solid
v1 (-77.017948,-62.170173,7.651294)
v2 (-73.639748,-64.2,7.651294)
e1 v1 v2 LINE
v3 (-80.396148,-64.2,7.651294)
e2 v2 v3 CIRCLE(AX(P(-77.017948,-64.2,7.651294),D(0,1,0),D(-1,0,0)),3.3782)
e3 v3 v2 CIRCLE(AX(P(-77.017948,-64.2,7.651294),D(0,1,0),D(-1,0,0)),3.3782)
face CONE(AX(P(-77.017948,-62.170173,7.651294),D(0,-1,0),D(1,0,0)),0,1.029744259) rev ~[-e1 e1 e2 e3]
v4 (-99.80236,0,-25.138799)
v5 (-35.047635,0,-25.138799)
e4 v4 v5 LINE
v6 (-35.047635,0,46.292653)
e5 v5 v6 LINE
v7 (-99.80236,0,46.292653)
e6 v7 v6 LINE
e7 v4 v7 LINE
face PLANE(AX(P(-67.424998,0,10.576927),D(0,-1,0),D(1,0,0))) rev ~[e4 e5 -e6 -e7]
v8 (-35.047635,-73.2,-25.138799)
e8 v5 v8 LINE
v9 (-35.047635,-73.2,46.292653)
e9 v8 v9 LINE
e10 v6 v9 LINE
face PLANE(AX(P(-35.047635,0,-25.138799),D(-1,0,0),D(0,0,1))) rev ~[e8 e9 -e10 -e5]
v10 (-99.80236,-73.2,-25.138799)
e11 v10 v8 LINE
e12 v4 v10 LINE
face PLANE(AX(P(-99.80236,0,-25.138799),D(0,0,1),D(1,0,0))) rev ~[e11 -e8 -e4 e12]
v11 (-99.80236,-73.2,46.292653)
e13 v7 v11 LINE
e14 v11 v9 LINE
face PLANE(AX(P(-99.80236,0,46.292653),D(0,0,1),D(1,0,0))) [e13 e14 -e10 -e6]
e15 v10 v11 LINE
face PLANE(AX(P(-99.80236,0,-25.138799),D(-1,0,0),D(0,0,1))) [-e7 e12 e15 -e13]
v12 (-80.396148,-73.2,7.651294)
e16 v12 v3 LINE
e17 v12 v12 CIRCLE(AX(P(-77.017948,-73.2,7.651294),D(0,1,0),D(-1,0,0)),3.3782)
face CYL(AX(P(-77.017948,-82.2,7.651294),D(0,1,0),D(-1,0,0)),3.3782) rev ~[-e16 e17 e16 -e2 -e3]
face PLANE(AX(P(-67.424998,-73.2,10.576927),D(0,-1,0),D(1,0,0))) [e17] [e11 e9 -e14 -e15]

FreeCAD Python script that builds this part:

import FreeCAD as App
import Part
import Sketcher

doc = App.newDocument("Part")
body = doc.addObject("PartDesign::Body", "Body")

sketch1 = doc.addObject("Sketcher::SketchObject", "Sketch")
body.addObject(sketch1)
sketch1.AttachmentSupport = (doc.XZ_Plane, [""])
sketch1.MapMode = "FlatFace"
sketch1.addGeometry(Part.LineSegment(App.Vector(-99.80236, 46.292653, 0), App.Vector(-99.80236, -25.138799, 0)), False)
sketch1.addGeometry(Part.LineSegment(App.Vector(-99.80236, -25.138799, 0), App.Vector(-35.047635, -25.138799, 0)), False)
sketch1.addGeometry(Part.LineSegment(App.Vector(-35.047635, -25.138799, 0), App.Vector(-35.047635, 46.292653, 0)), False)
sketch1.addGeometry(Part.LineSegment(App.Vector(-35.047635, 46.292653, 0), App.Vector(-99.80236, 46.292653, 0)), False)
sketch1.addConstraint(Sketcher.Constraint("Coincident", 0, 2, 1, 1))
sketch1.addConstraint(Sketcher.Constraint("Coincident", 1, 2, 2, 1))
sketch1.addConstraint(Sketcher.Constraint("Coincident", 2, 2, 3, 1))
sketch1.addConstraint(Sketcher.Constraint("Coincident", 3, 2, 0, 1))
sketch1.addConstraint(Sketcher.Constraint("Vertical", 0))
sketch1.addConstraint(Sketcher.Constraint("Horizontal", 1))
sketch1.addConstraint(Sketcher.Constraint("Vertical", 2))
sketch1.addConstraint(Sketcher.Constraint("Horizontal", 3))
sketch1.addConstraint(Sketcher.Constraint("DistanceY", 0, 2, -1, 1, 25.138799))
sketch1.addConstraint(Sketcher.Constraint("DistanceX", 1, 1, 1, 2, 64.754725))
sketch1.addConstraint(Sketcher.Constraint("DistanceY", 0, 2, 0, 1, 71.431452))
sketch1.addConstraint(Sketcher.Constraint("DistanceX", 0, 2, -1, 1, 99.80236))
pad1 = doc.addObject("PartDesign::Pad", "Pad")
body.addObject(pad1)
pad1.Profile = sketch1
pad1.Length = 73.2

sketch2 = doc.addObject("Sketcher::SketchObject", "Sketch001")
body.addObject(sketch2)
sketch2.AttachmentSupport = (doc.XZ_Plane, [""])
sketch2.MapMode = "FlatFace"
sketch2.AttachmentOffset = App.Placement(App.Vector(0, 0, 73.2), App.Rotation())
sketch2.addGeometry(Part.Circle(App.Vector(-77.017948, 7.651294, 0), App.Vector(0, 0, 1), 3.3782), False)
sketch2.addConstraint(Sketcher.Constraint("Diameter", 0, 6.7564))
sketch2.addConstraint(Sketcher.Constraint("DistanceX", 0, 3, -1, 1, 77.017948))
sketch2.addConstraint(Sketcher.Constraint("DistanceY", -1, 1, 0, 3, 7.651294))
doc.recompute()
hole = doc.addObject("PartDesign::Hole", "Hole")
body.addObject(hole)
hole.Profile = sketch2
hole.ThreadType = "None"
hole.Diameter = 6.7564
hole.DepthType = "Dimension"
hole.Depth = 9
hole.DrillPoint = "Angled"
hole.DrillPointAngle = 118

doc.recompute()
